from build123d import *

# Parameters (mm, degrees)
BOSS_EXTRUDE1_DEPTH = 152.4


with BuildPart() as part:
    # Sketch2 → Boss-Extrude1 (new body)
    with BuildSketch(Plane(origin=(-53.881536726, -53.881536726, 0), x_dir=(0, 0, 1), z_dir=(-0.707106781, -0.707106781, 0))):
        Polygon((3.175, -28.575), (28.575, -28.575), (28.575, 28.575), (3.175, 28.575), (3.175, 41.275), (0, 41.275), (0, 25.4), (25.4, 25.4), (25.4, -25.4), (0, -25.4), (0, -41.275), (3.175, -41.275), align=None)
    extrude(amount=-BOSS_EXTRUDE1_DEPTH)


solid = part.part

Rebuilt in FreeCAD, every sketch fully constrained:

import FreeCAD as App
import Part
import Sketcher
from FreeCAD import Vector
Q = App.Units.Quantity

doc = App.newDocument("Part")
params = doc.addObject("Spreadsheet::Sheet", "Params")
for row, (alias, value) in enumerate([
    ("sketch1_width", "1 in"),
    ("sketch1_height", "2 in"),
    ("sketch1_height2", "0.5 in"),
    ("sketch1_height3", "2.25 in"),
    ("sketch1_width2", "0.125 in"),
    ("pad1_length", "6 in"),
], start=1):
    params.set(f"A{row}", alias)
    params.set(f"B{row}", "=" + value)
    params.setAlias(f"B{row}", alias)

body = doc.addObject("PartDesign::Body", "Body")

# Sketch on an angled plane
sketch1 = body.newObject("Sketcher::SketchObject", "Sketch")
sketch1.Placement = App.Placement(Vector(-53.881537, -53.881537, 0), App.Rotation(Vector(0, 0, 1), Vector(-0.707106781, 0.707106781, 0), Vector(-0.707106781, -0.707106781, 0), "ZXY"))
sketch1.addGeometry(Part.LineSegment(Vector(3.2, -28.6, 0), Vector(28.6, -28.6, 0)), False)
sketch1.addGeometry(Part.LineSegment(Vector(28.6, -28.6, 0), Vector(28.6, 28.6, 0)), False)
sketch1.addGeometry(Part.LineSegment(Vector(28.6, 28.6, 0), Vector(3.2, 28.6, 0)), False)
sketch1.addGeometry(Part.LineSegment(Vector(3.2, 28.6, 0), Vector(3.2, 41.3, 0)), False)
sketch1.addGeometry(Part.LineSegment(Vector(3.2, 41.3, 0), Vector(0, 41.3, 0)), False)
sketch1.addGeometry(Part.LineSegment(Vector(0, 41.3, 0), Vector(0, 25.4, 0)), False)
sketch1.addGeometry(Part.LineSegment(Vector(0, 25.4, 0), Vector(25.4, 25.4, 0)), False)
sketch1.addGeometry(Part.LineSegment(Vector(25.4, 25.4, 0), Vector(25.4, -25.4, 0)), False)
sketch1.addGeometry(Part.LineSegment(Vector(25.4, -25.4, 0), Vector(0, -25.4, 0)), False)
sketch1.addGeometry(Part.LineSegment(Vector(0, -25.4, 0), Vector(0, -41.3, 0)), False)
sketch1.addGeometry(Part.LineSegment(Vector(0, -41.3, 0), Vector(3.2, -41.3, 0)), False)
sketch1.addGeometry(Part.LineSegment(Vector(3.2, -41.3, 0), Vector(3.2, -28.6, 0)), False)
sketch1.addConstraint(Sketcher.Constraint("Coincident", 0, 2, 1, 1))
sketch1.addConstraint(Sketcher.Constraint("Coincident", 1, 2, 2, 1))
sketch1.addConstraint(Sketcher.Constraint("Coincident", 2, 2, 3, 1))
sketch1.addConstraint(Sketcher.Constraint("Coincident", 3, 2, 4, 1))
sketch1.addConstraint(Sketcher.Constraint("Coincident", 4, 2, 5, 1))
sketch1.addConstraint(Sketcher.Constraint("Coincident", 5, 2, 6, 1))
sketch1.addConstraint(Sketcher.Constraint("Coincident", 6, 2, 7, 1))
sketch1.addConstraint(Sketcher.Constraint("Coincident", 7, 2, 8, 1))
sketch1.addConstraint(Sketcher.Constraint("Coincident", 8, 2, 9, 1))
sketch1.addConstraint(Sketcher.Constraint("Coincident", 9, 2, 10, 1))
sketch1.addConstraint(Sketcher.Constraint("Coincident", 10, 2, 11, 1))
sketch1.addConstraint(Sketcher.Constraint("Coincident", 11, 2, 0, 1))
sketch1.addConstraint(Sketcher.Constraint("Horizontal", 0))
sketch1.addConstraint(Sketcher.Constraint("Vertical", 1))
sketch1.addConstraint(Sketcher.Constraint("Horizontal", 2))
sketch1.addConstraint(Sketcher.Constraint("Vertical", 3))
sketch1.addConstraint(Sketcher.Constraint("Horizontal", 4))
sketch1.addConstraint(Sketcher.Constraint("Vertical", 5))
sketch1.addConstraint(Sketcher.Constraint("Horizontal", 6))
sketch1.addConstraint(Sketcher.Constraint("Vertical", 7))
sketch1.addConstraint(Sketcher.Constraint("Horizontal", 8))
sketch1.addConstraint(Sketcher.Constraint("Vertical", 9))
sketch1.addConstraint(Sketcher.Constraint("Horizontal", 10))
sketch1.addConstraint(Sketcher.Constraint("Vertical", 11))
sketch1.addConstraint(Sketcher.Constraint("Symmetric", 5, 2, 8, 2, -1, 1))
sketch1.addConstraint(Sketcher.Constraint("Symmetric", 4, 2, 9, 2, -1))
sketch1.addConstraint(Sketcher.Constraint("Symmetric", 2, 2, 11, 2, -1))
sketch1.addConstraint(Sketcher.Constraint("Equal", 2, 6))
sketch1.addConstraint(Sketcher.Constraint("DistanceX", 0, 1, 0, 2, Q("1 in")))
sketch1.addConstraint(Sketcher.Constraint("DistanceY", 7, 2, 7, 1, Q("2 in")))
sketch1.addConstraint(Sketcher.Constraint("DistanceY", 3, 1, 3, 2, Q("0.5 in")))
sketch1.addConstraint(Sketcher.Constraint("DistanceY", 1, 1, 1, 2, Q("2.25 in")))
sketch1.addConstraint(Sketcher.Constraint("DistanceX", 4, 2, 4, 1, Q("0.125 in")))
sketch1.setExpression("Constraints[28]", "Params.sketch1_width")
sketch1.setExpression("Constraints[29]", "Params.sketch1_height")
sketch1.setExpression("Constraints[30]", "Params.sketch1_height2")
sketch1.setExpression("Constraints[31]", "Params.sketch1_height3")
sketch1.setExpression("Constraints[32]", "Params.sketch1_width2")
pad1 = body.newObject("PartDesign::Pad", "Pad")
pad1.Profile = sketch1
pad1.setExpression("Length", "Params.pad1_length")
pad1.Reversed = True

doc.recompute()
